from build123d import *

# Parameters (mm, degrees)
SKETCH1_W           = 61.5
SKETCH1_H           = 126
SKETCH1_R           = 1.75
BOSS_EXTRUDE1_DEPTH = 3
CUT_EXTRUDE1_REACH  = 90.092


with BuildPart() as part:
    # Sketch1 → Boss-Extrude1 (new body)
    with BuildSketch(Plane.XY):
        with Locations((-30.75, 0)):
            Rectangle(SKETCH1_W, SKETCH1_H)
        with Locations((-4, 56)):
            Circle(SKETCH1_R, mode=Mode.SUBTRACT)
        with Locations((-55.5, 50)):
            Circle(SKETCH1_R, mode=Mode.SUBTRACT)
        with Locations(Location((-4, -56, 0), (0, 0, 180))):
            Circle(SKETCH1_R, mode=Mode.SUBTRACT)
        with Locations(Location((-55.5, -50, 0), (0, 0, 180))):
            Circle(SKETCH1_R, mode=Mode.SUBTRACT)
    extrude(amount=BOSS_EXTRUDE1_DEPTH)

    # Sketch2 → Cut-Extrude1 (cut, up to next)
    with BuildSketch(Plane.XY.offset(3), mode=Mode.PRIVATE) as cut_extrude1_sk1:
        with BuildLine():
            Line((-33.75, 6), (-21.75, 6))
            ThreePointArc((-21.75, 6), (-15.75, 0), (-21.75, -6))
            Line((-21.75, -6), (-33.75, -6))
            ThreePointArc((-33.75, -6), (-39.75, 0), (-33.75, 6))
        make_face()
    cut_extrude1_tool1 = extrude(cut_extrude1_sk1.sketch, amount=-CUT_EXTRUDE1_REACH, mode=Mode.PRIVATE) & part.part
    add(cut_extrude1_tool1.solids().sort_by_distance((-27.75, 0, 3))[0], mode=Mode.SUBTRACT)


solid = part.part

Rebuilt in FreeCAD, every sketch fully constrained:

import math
import FreeCAD as App
import Part
import Sketcher
Q = App.Units.Quantity


def add_polygon(sketch, points):
    """Adds a closed chain of lines whose ends are joined by coincident constraints."""
    first, n = sketch.GeometryCount, len(points)
    for a, b in zip(points, points[1:] + points[:1]):
        sketch.addGeometry(Part.LineSegment(App.Vector(*a, 0), App.Vector(*b, 0)), False)
    for i in range(n):
        sketch.addConstraint(Sketcher.Constraint("Coincident", first + i, 2, first + (i + 1) % n, 1))

doc = App.newDocument("Part")
body = doc.addObject("PartDesign::Body", "Body")

# Sketch on XY plane
sketch1 = body.newObject("Sketcher::SketchObject", "Sketch")
sketch1.AttachmentSupport = (doc.getObject("XY_Plane"), [""])
sketch1.MapMode = "FlatFace"
add_polygon(sketch1, [(-61.5, 63), (-61.5, -63), (0, -63), (0, 63)])  # lines 0-3
sketch1.addGeometry(Part.Circle(App.Vector(-55.5, -50, 0), App.Vector(0, 0, 1), 1.8), False)  # 4
sketch1.addGeometry(Part.Circle(App.Vector(-4, -56, 0), App.Vector(0, 0, 1), 1.8), False)  # 5
sketch1.addGeometry(Part.Circle(App.Vector(-55.5, 50, 0), App.Vector(0, 0, 1), 1.8), False)  # 6
sketch1.addGeometry(Part.Circle(App.Vector(-4, 56, 0), App.Vector(0, 0, 1), 1.8), False)  # 7
sketch1.addConstraint([
    Sketcher.Constraint("Vertical", 0),
    Sketcher.Constraint("Horizontal", 1),
    Sketcher.Constraint("Vertical", 2),
    Sketcher.Constraint("Horizontal", 3),
    Sketcher.Constraint("Equal", 4, 5),
    Sketcher.Constraint("Equal", 5, 6),
    Sketcher.Constraint("Equal", 6, 7),
    Sketcher.Constraint("Symmetric", 1, 2, 2, 2, -1, 1),
    Sketcher.Constraint("Symmetric", 4, 3, 6, 3, -1),
    Sketcher.Constraint("Symmetric", 5, 3, 7, 3, -1),
    Sketcher.Constraint("Diameter", 4, Q("3.5 mm")),
    Sketcher.Constraint("DistanceY", 0, 2, 0, 1, Q("126 mm")),
    Sketcher.Constraint("DistanceX", 1, 1, 1, 2, Q("61.5 mm")),
    Sketcher.Constraint("DistanceY", 4, 3, -1, 1, Q("50 mm")),
    Sketcher.Constraint("DistanceX", 5, 3, -1, 1, Q("4 mm")),
    Sketcher.Constraint("DistanceY", 5, 3, -1, 1, Q("56 mm")),
    Sketcher.Constraint("DistanceX", 0, 2, 4, 3, Q("6 mm")),
])
pad1 = body.newObject("PartDesign::Pad", "Pad")
pad1.Profile = sketch1
pad1.Length = 3

# Sketch on XY plane
sketch2 = body.newObject("Sketcher::SketchObject", "Sketch001")
sketch2.AttachmentSupport = (doc.getObject("XY_Plane"), [""])
sketch2.MapMode = "FlatFace"
sketch2.AttachmentOffset = App.Placement(App.Vector(0, 0, 3), App.Rotation())
sketch2.addGeometry([
    Part.LineSegment(App.Vector(-22, 6, 0), App.Vector(-34, 6, 0)),
    Part.ArcOfCircle(Part.Circle(App.Vector(-34, 0, 0), App.Vector(0, 0, 1), 6), math.radians(90), math.radians(270)),
    Part.LineSegment(App.Vector(-34, -6, 0), App.Vector(-22, -6, 0)),
    Part.ArcOfCircle(Part.Circle(App.Vector(-22, 0, 0), App.Vector(0, 0, 1), 6), math.radians(-90), math.radians(90)),
], False)
sketch2.addConstraint([
    Sketcher.Constraint("Tangent", 0, 2, 1, 1),
    Sketcher.Constraint("Tangent", 1, 2, 2, 1),
    Sketcher.Constraint("Tangent", 2, 2, 3, 1),
    Sketcher.Constraint("Tangent", 3, 2, 0, 1),
    Sketcher.Constraint("Horizontal", 0),
    Sketcher.Constraint("Horizontal", 2),
    Sketcher.Constraint("PointOnObject", 1, 3, -1),
    Sketcher.Constraint("Radius", 1, Q("6 mm")),
    Sketcher.Constraint("DistanceX", 0, 2, 0, 1, Q("12 mm")),
    Sketcher.Constraint("DistanceX", 1, 3, -1, 1, Q("33.75 mm")),
])
pocket1 = body.newObject("PartDesign::Pocket", "Pocket")
pocket1.Profile = sketch2
pocket1.Type = "UpToFirst"

doc.recompute()
